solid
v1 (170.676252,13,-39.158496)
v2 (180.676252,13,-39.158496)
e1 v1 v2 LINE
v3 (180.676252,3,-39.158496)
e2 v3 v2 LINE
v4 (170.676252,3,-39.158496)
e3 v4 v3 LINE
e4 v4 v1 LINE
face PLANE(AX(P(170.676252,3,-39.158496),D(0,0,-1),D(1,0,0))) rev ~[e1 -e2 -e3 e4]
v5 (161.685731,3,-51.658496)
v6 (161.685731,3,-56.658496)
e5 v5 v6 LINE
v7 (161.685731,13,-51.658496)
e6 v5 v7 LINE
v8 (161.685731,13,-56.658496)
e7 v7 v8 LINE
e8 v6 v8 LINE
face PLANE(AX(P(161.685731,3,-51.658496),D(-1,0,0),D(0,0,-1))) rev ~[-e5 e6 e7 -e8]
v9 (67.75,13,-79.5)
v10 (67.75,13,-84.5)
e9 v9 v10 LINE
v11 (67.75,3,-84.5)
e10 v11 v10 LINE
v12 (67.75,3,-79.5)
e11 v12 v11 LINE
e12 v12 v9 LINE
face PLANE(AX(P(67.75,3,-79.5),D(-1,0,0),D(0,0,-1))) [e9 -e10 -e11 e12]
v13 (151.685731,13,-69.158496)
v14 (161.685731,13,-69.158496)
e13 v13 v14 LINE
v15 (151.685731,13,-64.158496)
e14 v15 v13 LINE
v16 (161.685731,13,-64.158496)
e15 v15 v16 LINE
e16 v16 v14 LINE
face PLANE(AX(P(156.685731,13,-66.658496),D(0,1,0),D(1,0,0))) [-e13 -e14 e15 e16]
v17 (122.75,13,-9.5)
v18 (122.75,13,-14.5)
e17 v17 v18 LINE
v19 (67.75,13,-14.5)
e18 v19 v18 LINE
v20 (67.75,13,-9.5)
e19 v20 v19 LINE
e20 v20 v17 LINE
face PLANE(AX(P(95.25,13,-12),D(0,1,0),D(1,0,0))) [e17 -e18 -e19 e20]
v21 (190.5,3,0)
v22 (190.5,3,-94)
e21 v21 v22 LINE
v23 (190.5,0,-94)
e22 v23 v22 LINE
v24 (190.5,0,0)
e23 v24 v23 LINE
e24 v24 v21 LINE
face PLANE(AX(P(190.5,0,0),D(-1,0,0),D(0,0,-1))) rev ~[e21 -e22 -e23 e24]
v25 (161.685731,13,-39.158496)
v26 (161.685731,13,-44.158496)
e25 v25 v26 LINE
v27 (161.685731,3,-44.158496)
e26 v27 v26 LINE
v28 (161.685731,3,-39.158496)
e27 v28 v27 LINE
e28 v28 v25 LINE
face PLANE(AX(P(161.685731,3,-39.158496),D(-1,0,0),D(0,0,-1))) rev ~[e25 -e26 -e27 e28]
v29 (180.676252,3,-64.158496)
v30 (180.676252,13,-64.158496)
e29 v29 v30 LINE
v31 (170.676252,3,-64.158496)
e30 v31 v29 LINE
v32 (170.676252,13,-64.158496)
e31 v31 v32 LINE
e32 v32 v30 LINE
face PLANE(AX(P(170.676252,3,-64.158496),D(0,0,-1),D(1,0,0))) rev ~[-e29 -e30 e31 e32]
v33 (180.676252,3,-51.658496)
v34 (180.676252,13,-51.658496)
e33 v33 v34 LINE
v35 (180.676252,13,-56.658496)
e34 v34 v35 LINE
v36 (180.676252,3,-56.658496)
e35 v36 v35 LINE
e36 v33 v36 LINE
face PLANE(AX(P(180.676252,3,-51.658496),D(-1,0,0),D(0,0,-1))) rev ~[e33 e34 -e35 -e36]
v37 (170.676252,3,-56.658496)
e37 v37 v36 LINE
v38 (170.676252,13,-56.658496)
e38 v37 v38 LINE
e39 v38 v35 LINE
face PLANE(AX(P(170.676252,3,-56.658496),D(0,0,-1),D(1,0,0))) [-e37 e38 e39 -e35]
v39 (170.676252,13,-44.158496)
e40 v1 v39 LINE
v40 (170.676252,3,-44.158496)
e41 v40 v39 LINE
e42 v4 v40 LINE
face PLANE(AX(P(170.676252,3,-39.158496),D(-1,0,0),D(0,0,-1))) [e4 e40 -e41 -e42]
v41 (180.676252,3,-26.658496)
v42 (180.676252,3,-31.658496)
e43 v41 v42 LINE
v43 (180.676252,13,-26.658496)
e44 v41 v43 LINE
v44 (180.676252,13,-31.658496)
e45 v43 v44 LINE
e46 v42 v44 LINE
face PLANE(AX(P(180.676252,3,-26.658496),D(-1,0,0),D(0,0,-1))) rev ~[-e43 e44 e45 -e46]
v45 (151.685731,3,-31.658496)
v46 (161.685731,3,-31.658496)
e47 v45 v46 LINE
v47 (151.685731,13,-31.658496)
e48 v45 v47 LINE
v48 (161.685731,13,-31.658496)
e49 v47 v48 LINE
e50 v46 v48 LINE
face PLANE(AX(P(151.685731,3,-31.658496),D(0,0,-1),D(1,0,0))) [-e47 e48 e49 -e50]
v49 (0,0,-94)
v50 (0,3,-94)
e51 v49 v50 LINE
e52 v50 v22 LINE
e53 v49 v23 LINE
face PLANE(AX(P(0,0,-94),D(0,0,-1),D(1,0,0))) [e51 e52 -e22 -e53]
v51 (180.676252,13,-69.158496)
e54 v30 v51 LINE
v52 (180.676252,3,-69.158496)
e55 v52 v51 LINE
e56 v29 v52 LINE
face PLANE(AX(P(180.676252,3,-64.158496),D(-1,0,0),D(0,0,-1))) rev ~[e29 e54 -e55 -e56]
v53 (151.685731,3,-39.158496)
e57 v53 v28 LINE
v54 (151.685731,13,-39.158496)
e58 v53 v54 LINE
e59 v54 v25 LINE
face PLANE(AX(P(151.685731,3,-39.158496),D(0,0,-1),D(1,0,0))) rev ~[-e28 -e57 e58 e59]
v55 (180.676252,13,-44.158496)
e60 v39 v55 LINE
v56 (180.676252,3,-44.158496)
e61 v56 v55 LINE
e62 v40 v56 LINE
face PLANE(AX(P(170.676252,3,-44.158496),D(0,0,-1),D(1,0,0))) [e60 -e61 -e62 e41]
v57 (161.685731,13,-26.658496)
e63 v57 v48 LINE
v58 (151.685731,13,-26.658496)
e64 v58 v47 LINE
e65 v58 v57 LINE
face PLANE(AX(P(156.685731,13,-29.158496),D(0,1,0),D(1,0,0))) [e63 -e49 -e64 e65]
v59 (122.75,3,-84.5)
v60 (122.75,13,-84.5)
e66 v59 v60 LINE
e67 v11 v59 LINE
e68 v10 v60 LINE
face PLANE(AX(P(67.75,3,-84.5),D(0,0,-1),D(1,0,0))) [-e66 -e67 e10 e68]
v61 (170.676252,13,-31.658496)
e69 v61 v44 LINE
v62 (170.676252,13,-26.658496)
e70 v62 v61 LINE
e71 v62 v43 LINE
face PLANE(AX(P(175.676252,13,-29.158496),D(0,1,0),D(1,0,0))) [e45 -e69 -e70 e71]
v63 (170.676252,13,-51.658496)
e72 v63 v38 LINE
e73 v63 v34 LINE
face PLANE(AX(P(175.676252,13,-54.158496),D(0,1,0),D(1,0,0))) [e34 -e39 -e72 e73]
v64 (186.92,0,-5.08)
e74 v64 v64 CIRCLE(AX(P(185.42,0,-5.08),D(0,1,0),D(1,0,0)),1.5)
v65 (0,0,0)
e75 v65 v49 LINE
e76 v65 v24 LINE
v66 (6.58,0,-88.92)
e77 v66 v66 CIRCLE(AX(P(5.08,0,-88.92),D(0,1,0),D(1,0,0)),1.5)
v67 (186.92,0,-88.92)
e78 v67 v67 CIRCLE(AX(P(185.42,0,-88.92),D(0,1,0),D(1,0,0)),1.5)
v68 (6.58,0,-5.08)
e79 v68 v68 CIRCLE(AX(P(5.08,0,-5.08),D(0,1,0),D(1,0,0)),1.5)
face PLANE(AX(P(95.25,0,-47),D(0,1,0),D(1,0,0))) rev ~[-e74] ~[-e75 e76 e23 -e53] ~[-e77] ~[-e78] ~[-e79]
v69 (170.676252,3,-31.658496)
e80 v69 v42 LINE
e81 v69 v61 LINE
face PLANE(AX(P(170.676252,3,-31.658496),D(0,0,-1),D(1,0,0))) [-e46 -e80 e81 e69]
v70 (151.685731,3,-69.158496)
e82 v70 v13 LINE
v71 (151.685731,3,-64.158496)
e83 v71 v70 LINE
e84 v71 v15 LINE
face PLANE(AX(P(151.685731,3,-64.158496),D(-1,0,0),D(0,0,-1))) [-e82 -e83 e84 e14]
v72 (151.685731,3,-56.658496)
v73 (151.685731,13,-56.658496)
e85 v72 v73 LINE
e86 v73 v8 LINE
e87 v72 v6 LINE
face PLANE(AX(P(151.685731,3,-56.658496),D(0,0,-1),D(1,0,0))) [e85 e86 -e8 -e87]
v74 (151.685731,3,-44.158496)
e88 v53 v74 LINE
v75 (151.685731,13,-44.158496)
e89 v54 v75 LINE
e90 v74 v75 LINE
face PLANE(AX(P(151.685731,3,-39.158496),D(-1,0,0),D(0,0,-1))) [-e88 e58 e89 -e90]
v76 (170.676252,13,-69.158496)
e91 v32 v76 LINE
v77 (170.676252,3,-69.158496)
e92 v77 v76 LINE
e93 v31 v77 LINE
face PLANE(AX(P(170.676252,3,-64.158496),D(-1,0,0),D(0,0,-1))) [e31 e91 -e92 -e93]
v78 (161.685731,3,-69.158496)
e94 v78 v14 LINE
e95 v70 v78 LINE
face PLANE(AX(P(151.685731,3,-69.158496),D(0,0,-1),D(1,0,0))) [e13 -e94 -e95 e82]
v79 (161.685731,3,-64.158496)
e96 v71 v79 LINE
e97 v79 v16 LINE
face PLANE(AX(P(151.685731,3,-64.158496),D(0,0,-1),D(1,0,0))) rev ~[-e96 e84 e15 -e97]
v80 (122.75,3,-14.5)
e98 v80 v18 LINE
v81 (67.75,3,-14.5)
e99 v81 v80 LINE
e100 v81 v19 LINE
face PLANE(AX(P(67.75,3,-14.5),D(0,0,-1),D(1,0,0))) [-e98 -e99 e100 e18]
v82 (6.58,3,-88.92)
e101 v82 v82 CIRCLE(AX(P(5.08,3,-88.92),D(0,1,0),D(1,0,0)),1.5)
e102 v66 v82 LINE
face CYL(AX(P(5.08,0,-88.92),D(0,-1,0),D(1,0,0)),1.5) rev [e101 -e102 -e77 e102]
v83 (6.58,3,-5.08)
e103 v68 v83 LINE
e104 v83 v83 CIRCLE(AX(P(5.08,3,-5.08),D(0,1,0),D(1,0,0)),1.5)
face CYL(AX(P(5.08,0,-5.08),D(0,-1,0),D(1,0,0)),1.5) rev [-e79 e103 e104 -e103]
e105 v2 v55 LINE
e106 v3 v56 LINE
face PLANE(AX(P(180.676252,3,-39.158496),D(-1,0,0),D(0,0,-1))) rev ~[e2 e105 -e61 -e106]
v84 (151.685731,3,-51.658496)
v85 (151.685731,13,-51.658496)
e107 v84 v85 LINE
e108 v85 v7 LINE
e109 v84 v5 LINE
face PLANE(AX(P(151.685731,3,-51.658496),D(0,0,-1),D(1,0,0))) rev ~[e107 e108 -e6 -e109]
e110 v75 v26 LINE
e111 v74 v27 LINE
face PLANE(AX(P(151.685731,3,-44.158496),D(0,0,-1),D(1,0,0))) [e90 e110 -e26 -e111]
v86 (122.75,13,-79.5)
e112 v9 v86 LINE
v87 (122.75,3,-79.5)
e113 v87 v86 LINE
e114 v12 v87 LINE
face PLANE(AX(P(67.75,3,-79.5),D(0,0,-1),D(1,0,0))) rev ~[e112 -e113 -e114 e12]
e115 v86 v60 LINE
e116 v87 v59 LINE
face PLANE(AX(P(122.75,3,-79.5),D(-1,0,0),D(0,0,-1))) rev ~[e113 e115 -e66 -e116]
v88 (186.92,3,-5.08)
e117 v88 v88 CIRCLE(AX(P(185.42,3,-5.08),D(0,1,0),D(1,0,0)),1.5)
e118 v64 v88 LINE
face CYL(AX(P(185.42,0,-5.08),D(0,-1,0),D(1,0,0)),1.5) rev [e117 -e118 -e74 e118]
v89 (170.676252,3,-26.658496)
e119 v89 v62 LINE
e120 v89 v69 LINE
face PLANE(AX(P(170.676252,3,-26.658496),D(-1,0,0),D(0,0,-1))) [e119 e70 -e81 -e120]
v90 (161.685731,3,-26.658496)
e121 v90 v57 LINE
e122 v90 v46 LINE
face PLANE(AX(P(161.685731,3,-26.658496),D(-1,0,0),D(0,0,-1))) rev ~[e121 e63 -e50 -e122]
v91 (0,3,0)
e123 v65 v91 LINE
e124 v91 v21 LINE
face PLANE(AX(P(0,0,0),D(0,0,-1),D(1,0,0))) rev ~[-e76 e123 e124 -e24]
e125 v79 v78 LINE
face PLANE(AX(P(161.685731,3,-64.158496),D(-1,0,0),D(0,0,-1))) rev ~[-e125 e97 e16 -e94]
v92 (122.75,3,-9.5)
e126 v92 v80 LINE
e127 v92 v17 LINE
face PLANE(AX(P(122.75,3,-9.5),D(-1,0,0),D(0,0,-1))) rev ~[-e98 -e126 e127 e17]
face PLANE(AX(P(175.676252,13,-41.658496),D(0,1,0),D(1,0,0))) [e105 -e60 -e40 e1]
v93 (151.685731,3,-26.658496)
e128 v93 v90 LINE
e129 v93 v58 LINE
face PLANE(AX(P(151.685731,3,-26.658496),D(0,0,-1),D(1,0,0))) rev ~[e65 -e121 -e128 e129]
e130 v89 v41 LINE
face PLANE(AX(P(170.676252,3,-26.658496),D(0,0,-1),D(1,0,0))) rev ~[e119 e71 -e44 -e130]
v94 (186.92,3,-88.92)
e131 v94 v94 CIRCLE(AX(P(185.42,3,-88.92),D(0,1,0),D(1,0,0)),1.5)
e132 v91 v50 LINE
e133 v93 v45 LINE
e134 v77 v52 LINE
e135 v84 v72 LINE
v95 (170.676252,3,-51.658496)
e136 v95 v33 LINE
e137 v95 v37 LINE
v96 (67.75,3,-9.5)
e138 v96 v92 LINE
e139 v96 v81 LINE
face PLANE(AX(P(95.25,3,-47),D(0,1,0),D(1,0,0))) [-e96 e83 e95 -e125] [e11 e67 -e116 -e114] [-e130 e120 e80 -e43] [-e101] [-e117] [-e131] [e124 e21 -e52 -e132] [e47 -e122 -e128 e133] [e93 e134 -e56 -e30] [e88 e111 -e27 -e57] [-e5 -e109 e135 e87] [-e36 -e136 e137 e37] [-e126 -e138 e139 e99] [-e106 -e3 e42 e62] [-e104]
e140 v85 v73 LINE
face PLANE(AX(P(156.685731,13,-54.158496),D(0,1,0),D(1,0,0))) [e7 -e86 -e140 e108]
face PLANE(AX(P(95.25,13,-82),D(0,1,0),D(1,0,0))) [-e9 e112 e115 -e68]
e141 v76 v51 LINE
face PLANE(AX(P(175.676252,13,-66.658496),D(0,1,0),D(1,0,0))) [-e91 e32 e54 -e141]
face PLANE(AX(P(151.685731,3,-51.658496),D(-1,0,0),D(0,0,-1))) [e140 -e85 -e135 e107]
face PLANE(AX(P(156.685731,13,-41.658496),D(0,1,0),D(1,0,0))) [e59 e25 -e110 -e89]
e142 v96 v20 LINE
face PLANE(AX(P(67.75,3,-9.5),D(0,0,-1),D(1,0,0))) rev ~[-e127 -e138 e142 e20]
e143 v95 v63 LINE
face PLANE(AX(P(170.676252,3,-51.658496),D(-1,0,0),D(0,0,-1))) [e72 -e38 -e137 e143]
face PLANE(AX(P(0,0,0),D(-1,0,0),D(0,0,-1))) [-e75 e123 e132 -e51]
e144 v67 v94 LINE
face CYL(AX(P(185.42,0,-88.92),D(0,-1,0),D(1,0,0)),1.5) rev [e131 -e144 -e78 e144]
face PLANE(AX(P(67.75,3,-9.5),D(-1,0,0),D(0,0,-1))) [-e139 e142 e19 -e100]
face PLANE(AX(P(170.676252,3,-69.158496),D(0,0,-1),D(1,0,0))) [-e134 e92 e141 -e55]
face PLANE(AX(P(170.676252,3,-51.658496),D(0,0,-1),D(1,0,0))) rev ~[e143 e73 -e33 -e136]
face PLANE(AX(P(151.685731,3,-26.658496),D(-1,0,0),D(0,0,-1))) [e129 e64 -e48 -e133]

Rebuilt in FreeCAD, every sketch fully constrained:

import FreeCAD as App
import Part
import Sketcher

V = App.Vector


def add_polygon(sketch, points):
    """Adds a closed chain of lines whose ends are joined by coincident constraints."""
    first, n = sketch.GeometryCount, len(points)
    for a, b in zip(points, points[1:] + points[:1]):
        sketch.addGeometry(Part.LineSegment(App.Vector(*a, 0), App.Vector(*b, 0)), False)
    for i in range(n):
        sketch.addConstraint(Sketcher.Constraint("Coincident", first + i, 2, first + (i + 1) % n, 1))

doc = App.newDocument("Part")
body = doc.addObject("PartDesign::Body", "Body")

# Sketch on XZ plane
sketch1 = body.newObject("Sketcher::SketchObject", "Sketch")
sketch1.AttachmentSupport = (doc.getObject("XZ_Plane"), [""])
sketch1.MapMode = "FlatFace"
add_polygon(sketch1, [(0, -94), (0, 0), (190.5, 0), (190.5, -94)])  # lines 0-3
sketch1.addGeometry(Part.Circle(V(5.08, -5.08, 0), V(0, 0, 1), 1.5), False)  # 4
sketch1.addGeometry(Part.Circle(V(185.42, -5.08, 0), V(0, 0, 1), 1.5), False)  # 5
sketch1.addGeometry(Part.Circle(V(5.08, -88.92, 0), V(0, 0, 1), 1.5), False)  # 6
sketch1.addGeometry(Part.Circle(V(185.42, -88.92, 0), V(0, 0, 1), 1.5), False)  # 7
sketch1.addConstraint(Sketcher.Constraint("Vertical", 0))
sketch1.addConstraint(Sketcher.Constraint("Horizontal", 1))
sketch1.addConstraint(Sketcher.Constraint("Vertical", 2))
sketch1.addConstraint(Sketcher.Constraint("Horizontal", 3))
sketch1.addConstraint(Sketcher.Constraint("Coincident", 0, 2, -1, 1))
sketch1.addConstraint(Sketcher.Constraint("Equal", 4, 5))
sketch1.addConstraint(Sketcher.Constraint("Equal", 5, 6))
sketch1.addConstraint(Sketcher.Constraint("Equal", 6, 7))
sketch1.addConstraint(Sketcher.Constraint("Horizontal", 4, 3, 5, 3))
sketch1.addConstraint(Sketcher.Constraint("Horizontal", 6, 3, 7, 3))
sketch1.addConstraint(Sketcher.Constraint("Vertical", 4, 3, 6, 3))
sketch1.addConstraint(Sketcher.Constraint("Vertical", 5, 3, 7, 3))
sketch1.addConstraint(Sketcher.Constraint("Diameter", 4, 3.0))
sketch1.addConstraint(Sketcher.Constraint("DistanceY", 0, 1, 0, 2, 94.0))
sketch1.addConstraint(Sketcher.Constraint("DistanceX", 1, 1, 1, 2, 190.5))
sketch1.addConstraint(Sketcher.Constraint("DistanceX", -1, 1, 4, 3, 5.08))
sketch1.addConstraint(Sketcher.Constraint("DistanceY", 4, 3, -1, 1, 5.08))
sketch1.addConstraint(Sketcher.Constraint("DistanceX", -1, 1, 5, 3, 185.42))
sketch1.addConstraint(Sketcher.Constraint("DistanceY", 6, 3, -1, 1, 88.92))
pad1 = body.newObject("PartDesign::Pad", "Pad")
pad1.Profile = sketch1
pad1.Length = 3
pad1.Reversed = True

# Sketch on XZ plane
sketch2 = body.newObject("Sketcher::SketchObject", "Sketch001")
sketch2.AttachmentSupport = (doc.getObject("XZ_Plane"), [""])
sketch2.MapMode = "FlatFace"
sketch2.AttachmentOffset = App.Placement(V(0, 0, -3), App.Rotation())
add_polygon(sketch2, [(67.75, -84.5), (67.75, -79.5), (122.75, -79.5), (122.75, -84.5)])  # lines 0-3
add_polygon(sketch2, [(67.75, -14.5), (67.75, -9.5), (122.75, -9.5), (122.75, -14.5)])  # lines 4-7
sketch2.addConstraint(Sketcher.Constraint("Vertical", 0))
sketch2.addConstraint(Sketcher.Constraint("Horizontal", 1))
sketch2.addConstraint(Sketcher.Constraint("Vertical", 2))
sketch2.addConstraint(Sketcher.Constraint("Horizontal", 3))
sketch2.addConstraint(Sketcher.Constraint("Vertical", 4))
sketch2.addConstraint(Sketcher.Constraint("Horizontal", 5))
sketch2.addConstraint(Sketcher.Constraint("Vertical", 6))
sketch2.addConstraint(Sketcher.Constraint("Horizontal", 7))
sketch2.addConstraint(Sketcher.Constraint("Vertical", 3, 2, 4, 2))
sketch2.addConstraint(Sketcher.Constraint("Vertical", 2, 2, 5, 2))
sketch2.addConstraint(Sketcher.Constraint("Equal", 2, 4))
sketch2.addConstraint(Sketcher.Constraint("DistanceX", 1, 1, 1, 2, 55.0))
sketch2.addConstraint(Sketcher.Constraint("DistanceY", 0, 1, 0, 2, 5.0))
sketch2.addConstraint(Sketcher.Constraint("DistanceY", 0, 2, 4, 2, 70.0))
sketch2.addConstraint(Sketcher.Constraint("DistanceY", 0, 2, -1, 1, 79.5))
sketch2.addConstraint(Sketcher.Constraint("DistanceX", -1, 1, 0, 2, 67.75))
pad2 = body.newObject("PartDesign::Pad", "Pad001")
pad2.Profile = sketch2
pad2.Length = 10
pad2.Reversed = True

# Sketch on XZ plane
sketch3 = body.newObject("Sketcher::SketchObject", "Sketch002")
sketch3.AttachmentSupport = (doc.getObject("XZ_Plane"), [""])
sketch3.MapMode = "FlatFace"
sketch3.AttachmentOffset = App.Placement(V(0, 0, -3), App.Rotation())
add_polygon(sketch3, [(170.676252, -69.158496), (170.676252, -64.158496), (180.676252, -64.158496), (180.676252, -69.158496)])  # lines 0-3
add_polygon(sketch3, [(151.685731, -69.158496), (151.685731, -64.158496), (161.685731, -64.158496), (161.685731, -69.158496)])  # lines 4-7
add_polygon(sketch3, [(151.685731, -44.158496), (151.685731, -39.158496), (161.685731, -39.158496), (161.685731, -44.158496)])  # lines 8-11
add_polygon(sketch3, [(151.685731, -31.658496), (151.685731, -26.658496), (161.685731, -26.658496), (161.685731, -31.658496)])  # lines 12-15
add_polygon(sketch3, [(151.685731, -56.658496), (151.685731, -51.658496), (161.685731, -51.658496), (161.685731, -56.658496)])  # lines 16-19
add_polygon(sketch3, [(170.676252, -44.158496), (170.676252, -39.158496), (180.676252, -39.158496), (180.676252, -44.158496)])  # lines 20-23
add_polygon(sketch3, [(170.676252, -31.658496), (170.676252, -26.658496), (180.676252, -26.658496), (180.676252, -31.658496)])  # lines 24-27
add_polygon(sketch3, [(170.676252, -56.658496), (170.676252, -51.658496), (180.676252, -51.658496), (180.676252, -56.658496)])  # lines 28-31
sketch3.addConstraint(Sketcher.Constraint("Vertical", 0))
sketch3.addConstraint(Sketcher.Constraint("Horizontal", 1))
sketch3.addConstraint(Sketcher.Constraint("Vertical", 2))
sketch3.addConstraint(Sketcher.Constraint("Horizontal", 3))
sketch3.addConstraint(Sketcher.Constraint("Vertical", 4))
sketch3.addConstraint(Sketcher.Constraint("Horizontal", 5))
sketch3.addConstraint(Sketcher.Constraint("Vertical", 6))
sketch3.addConstraint(Sketcher.Constraint("Horizontal", 7))
sketch3.addConstraint(Sketcher.Constraint("Vertical", 8))
sketch3.addConstraint(Sketcher.Constraint("Horizontal", 9))
sketch3.addConstraint(Sketcher.Constraint("Vertical", 10))
sketch3.addConstraint(Sketcher.Constraint("Horizontal", 11))
sketch3.addConstraint(Sketcher.Constraint("Vertical", 12))
sketch3.addConstraint(Sketcher.Constraint("Horizontal", 13))
sketch3.addConstraint(Sketcher.Constraint("Vertical", 14))
sketch3.addConstraint(Sketcher.Constraint("Horizontal", 15))
sketch3.addConstraint(Sketcher.Constraint("Vertical", 16))
sketch3.addConstraint(Sketcher.Constraint("Horizontal", 17))
sketch3.addConstraint(Sketcher.Constraint("Vertical", 18))
sketch3.addConstraint(Sketcher.Constraint("Horizontal", 19))
sketch3.addConstraint(Sketcher.Constraint("Vertical", 20))
sketch3.addConstraint(Sketcher.Constraint("Horizontal", 21))
sketch3.addConstraint(Sketcher.Constraint("Vertical", 22))
sketch3.addConstraint(Sketcher.Constraint("Horizontal", 23))
sketch3.addConstraint(Sketcher.Constraint("Vertical", 24))
sketch3.addConstraint(Sketcher.Constraint("Horizontal", 25))
sketch3.addConstraint(Sketcher.Constraint("Vertical", 26))
sketch3.addConstraint(Sketcher.Constraint("Horizontal", 27))
sketch3.addConstraint(Sketcher.Constraint("Vertical", 28))
sketch3.addConstraint(Sketcher.Constraint("Horizontal", 29))
sketch3.addConstraint(Sketcher.Constraint("Vertical", 30))
sketch3.addConstraint(Sketcher.Constraint("Horizontal", 31))
sketch3.addConstraint(Sketcher.Constraint("Horizontal", 1, 2, 4, 2))
sketch3.addConstraint(Sketcher.Constraint("Horizontal", 3, 2, 6, 2))
sketch3.addConstraint(Sketcher.Constraint("Horizontal", 9, 2, 20, 2))
sketch3.addConstraint(Sketcher.Constraint("Horizontal", 11, 2, 22, 2))
sketch3.addConstraint(Sketcher.Constraint("Horizontal", 13, 2, 24, 2))
sketch3.addConstraint(Sketcher.Constraint("Horizontal", 15, 2, 26, 2))
sketch3.addConstraint(Sketcher.Constraint("Horizontal", 17, 2, 28, 2))
sketch3.addConstraint(Sketcher.Constraint("Horizontal", 19, 2, 30, 2))
sketch3.addConstraint(Sketcher.Constraint("Vertical", 7, 2, 8, 2))
sketch3.addConstraint(Sketcher.Constraint("Vertical", 6, 2, 9, 2))
sketch3.addConstraint(Sketcher.Constraint("Vertical", 11, 2, 12, 2))
sketch3.addConstraint(Sketcher.Constraint("Vertical", 10, 2, 13, 2))
sketch3.addConstraint(Sketcher.Constraint("Vertical", 15, 2, 16, 2))
sketch3.addConstraint(Sketcher.Constraint("Vertical", 14, 2, 17, 2))
sketch3.addConstraint(Sketcher.Constraint("Vertical", 3, 2, 20, 2))
sketch3.addConstraint(Sketcher.Constraint("Vertical", 2, 2, 21, 2))
sketch3.addConstraint(Sketcher.Constraint("Vertical", 23, 2, 24, 2))
sketch3.addConstraint(Sketcher.Constraint("Vertical", 22, 2, 25, 2))
sketch3.addConstraint(Sketcher.Constraint("Vertical", 27, 2, 28, 2))
sketch3.addConstraint(Sketcher.Constraint("Vertical", 26, 2, 29, 2))
sketch3.addConstraint(Sketcher.Constraint("Equal", 3, 5))
sketch3.addConstraint(Sketcher.Constraint("Equal", 6, 8))
sketch3.addConstraint(Sketcher.Constraint("Equal", 10, 12))
sketch3.addConstraint(Sketcher.Constraint("Equal", 14, 16))
sketch3.addConstraint(Sketcher.Constraint("DistanceX", 1, 1, 1, 2, 10.0))
sketch3.addConstraint(Sketcher.Constraint("DistanceY", 0, 1, 0, 2, 5.0))
sketch3.addConstraint(Sketcher.Constraint("DistanceY", 4, 2, 8, 2, 25.0))
sketch3.addConstraint(Sketcher.Constraint("DistanceY", 8, 2, 12, 2, 12.5))
sketch3.addConstraint(Sketcher.Constraint("DistanceY", 16, 2, 11, 2, 7.5))
sketch3.addConstraint(Sketcher.Constraint("DistanceX", -1, 1, 0, 2, 170.676252))
sketch3.addConstraint(Sketcher.Constraint("DistanceX", -1, 1, 4, 2, 151.685731))
sketch3.addConstraint(Sketcher.Constraint("DistanceY", 0, 2, -1, 1, 64.158496))
pad3 = body.newObject("PartDesign::Pad", "Pad002")
pad3.Profile = sketch3
pad3.Length = 10
pad3.Reversed = True

doc.recompute()
